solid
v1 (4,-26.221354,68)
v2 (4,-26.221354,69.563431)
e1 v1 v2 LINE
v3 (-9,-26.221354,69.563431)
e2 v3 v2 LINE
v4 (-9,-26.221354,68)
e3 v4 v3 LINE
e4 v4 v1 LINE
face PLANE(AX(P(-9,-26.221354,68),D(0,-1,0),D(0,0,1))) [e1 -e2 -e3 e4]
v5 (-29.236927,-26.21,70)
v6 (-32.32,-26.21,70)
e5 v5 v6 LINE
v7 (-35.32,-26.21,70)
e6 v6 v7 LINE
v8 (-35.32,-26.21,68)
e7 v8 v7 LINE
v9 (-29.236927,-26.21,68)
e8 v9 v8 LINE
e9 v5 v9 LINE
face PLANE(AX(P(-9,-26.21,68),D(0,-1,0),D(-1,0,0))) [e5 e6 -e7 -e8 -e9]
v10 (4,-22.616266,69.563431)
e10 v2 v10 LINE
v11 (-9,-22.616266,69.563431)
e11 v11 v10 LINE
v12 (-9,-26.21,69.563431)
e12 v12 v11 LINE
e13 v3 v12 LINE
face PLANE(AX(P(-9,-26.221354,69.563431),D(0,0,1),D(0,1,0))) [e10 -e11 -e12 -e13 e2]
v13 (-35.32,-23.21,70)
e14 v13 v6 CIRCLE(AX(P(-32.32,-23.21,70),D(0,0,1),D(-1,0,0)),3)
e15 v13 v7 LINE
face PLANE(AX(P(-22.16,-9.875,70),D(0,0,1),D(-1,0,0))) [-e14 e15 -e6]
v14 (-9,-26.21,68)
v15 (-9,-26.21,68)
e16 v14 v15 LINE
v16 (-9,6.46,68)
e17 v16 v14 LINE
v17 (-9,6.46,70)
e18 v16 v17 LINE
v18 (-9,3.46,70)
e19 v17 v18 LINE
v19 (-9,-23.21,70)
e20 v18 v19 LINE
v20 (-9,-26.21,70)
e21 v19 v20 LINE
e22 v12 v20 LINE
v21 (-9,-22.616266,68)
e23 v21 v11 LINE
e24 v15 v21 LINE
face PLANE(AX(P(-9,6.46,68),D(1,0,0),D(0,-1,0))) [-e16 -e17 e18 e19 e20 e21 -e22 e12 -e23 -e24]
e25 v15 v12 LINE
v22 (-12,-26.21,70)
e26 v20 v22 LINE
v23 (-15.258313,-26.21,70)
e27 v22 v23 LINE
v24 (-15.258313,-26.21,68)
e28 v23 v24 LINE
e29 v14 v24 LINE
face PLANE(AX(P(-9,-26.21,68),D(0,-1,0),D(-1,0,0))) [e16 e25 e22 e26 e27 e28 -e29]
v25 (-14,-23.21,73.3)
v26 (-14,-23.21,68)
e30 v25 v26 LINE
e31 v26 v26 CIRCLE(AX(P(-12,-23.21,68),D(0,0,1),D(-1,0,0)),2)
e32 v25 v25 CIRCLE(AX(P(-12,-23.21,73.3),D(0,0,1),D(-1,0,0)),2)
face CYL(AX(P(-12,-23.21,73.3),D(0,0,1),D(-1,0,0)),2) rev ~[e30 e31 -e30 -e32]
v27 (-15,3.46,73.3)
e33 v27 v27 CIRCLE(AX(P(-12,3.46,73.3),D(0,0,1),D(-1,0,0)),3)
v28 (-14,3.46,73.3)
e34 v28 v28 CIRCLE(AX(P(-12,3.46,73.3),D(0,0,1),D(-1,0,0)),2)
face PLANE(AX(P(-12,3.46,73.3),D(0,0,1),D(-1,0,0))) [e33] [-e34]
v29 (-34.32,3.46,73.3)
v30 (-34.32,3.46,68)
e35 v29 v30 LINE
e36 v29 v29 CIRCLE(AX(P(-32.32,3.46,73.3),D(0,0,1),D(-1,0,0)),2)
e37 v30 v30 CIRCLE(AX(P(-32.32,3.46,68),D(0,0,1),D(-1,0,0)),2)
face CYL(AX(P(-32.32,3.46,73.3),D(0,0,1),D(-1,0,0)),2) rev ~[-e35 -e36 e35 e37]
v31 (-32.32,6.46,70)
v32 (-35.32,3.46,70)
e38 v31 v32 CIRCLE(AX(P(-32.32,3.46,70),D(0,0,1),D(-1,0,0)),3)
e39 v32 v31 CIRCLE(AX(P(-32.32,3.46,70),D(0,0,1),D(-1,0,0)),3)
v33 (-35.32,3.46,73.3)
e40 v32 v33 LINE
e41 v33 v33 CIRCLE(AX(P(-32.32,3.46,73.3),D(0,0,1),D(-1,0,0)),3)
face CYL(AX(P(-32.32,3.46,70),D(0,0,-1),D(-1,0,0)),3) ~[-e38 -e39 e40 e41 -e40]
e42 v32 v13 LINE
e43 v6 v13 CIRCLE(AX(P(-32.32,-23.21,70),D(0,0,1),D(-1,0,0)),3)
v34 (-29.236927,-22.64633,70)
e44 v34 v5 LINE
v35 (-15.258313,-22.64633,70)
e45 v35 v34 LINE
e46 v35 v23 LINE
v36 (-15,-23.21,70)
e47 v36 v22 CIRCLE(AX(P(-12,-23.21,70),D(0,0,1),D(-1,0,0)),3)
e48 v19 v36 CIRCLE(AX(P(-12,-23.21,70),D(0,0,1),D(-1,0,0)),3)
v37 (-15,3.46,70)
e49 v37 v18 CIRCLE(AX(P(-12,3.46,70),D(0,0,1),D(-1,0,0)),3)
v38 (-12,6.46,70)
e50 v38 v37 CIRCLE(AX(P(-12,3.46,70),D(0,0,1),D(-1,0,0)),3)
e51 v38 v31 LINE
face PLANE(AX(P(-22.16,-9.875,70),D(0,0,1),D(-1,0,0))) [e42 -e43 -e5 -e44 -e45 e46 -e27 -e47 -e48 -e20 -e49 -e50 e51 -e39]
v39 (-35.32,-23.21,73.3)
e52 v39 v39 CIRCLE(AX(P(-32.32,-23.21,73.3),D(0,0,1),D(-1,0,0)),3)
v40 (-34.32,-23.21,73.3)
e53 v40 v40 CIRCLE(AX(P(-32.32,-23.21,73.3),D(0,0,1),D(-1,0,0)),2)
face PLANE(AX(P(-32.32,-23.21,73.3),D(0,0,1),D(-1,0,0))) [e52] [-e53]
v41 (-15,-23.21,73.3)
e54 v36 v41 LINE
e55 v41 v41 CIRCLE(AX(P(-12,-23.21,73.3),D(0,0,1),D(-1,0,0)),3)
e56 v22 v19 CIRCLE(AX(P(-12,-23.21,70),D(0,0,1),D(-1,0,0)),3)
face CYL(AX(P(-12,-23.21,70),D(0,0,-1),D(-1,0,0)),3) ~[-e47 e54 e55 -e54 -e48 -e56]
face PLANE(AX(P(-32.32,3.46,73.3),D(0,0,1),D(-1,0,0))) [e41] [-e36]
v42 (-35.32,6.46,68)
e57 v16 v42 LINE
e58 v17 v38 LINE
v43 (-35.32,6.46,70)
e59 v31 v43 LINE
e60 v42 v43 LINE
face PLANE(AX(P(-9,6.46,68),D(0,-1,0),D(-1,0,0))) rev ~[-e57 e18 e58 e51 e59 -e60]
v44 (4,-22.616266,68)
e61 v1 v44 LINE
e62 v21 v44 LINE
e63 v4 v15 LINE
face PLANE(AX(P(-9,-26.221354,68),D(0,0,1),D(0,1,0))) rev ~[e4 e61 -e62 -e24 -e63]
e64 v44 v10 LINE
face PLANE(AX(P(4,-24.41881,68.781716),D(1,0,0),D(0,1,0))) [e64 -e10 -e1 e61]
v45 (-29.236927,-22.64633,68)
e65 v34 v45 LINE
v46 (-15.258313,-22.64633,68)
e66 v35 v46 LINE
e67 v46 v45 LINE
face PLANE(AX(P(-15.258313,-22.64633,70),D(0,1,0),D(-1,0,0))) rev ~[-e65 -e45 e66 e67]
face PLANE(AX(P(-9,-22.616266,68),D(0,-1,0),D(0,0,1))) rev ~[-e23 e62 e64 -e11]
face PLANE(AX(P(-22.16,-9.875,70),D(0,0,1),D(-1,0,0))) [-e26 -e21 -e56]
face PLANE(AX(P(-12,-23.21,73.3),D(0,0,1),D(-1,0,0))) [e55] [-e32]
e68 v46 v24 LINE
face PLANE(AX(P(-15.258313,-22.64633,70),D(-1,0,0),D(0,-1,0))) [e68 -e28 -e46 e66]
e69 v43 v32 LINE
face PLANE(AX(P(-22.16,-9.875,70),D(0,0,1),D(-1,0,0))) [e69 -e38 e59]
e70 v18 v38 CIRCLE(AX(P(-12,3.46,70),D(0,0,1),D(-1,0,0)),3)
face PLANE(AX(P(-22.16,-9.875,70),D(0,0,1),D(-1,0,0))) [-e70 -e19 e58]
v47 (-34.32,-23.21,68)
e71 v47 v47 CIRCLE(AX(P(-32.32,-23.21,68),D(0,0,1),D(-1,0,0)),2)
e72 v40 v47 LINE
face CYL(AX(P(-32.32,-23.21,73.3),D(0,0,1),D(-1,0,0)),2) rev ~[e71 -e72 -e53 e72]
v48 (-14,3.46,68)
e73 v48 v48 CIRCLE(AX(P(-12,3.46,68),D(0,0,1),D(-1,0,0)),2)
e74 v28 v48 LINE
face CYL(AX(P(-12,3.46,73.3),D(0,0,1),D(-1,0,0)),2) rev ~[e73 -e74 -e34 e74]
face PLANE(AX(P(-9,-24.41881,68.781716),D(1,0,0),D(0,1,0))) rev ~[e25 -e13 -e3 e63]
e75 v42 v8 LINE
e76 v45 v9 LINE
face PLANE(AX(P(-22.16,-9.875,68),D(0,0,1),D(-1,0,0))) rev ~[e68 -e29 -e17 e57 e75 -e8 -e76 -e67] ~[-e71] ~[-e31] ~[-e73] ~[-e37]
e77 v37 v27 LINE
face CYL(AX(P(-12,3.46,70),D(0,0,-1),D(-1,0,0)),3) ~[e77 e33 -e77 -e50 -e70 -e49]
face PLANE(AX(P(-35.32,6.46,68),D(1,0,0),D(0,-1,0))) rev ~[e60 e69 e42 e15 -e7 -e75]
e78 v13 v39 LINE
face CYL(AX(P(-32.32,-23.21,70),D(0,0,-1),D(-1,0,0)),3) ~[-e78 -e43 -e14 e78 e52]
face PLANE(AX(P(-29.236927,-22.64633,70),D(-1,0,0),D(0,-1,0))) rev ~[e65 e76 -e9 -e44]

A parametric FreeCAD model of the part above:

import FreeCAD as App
import Part
import Sketcher

V = App.Vector

doc = App.newDocument("Part")
body = doc.addObject("PartDesign::Body", "Body")

sketch1 = body.newObject("Sketcher::SketchObject", "Sketch")
sketch1.AttachmentSupport = (doc.getObject("XY_Plane"), [""])
sketch1.MapMode = "FlatFace"
sketch1.addGeometry([
    Part.LineSegment(V(-0.46, 32.21, 0), V(-0.46, -0.46, 0)),
    Part.LineSegment(V(-0.46, -0.46, 0), V(25.86, -0.46, 0)),
    Part.LineSegment(V(25.86, -0.46, 0), V(25.86, 32.21, 0)),
    Part.LineSegment(V(25.86, 32.21, 0), V(-0.46, 32.21, 0)),
], False)
sketch1.addConstraint([
    Sketcher.Constraint("Coincident", 0, 2, 1, 1),
    Sketcher.Constraint("Coincident", 1, 2, 2, 1),
    Sketcher.Constraint("Coincident", 2, 2, 3, 1),
    Sketcher.Constraint("Coincident", 3, 2, 0, 1),
    Sketcher.Constraint("Vertical", 0),
    Sketcher.Constraint("Horizontal", 1),
    Sketcher.Constraint("Vertical", 2),
    Sketcher.Constraint("Horizontal", 3),
    Sketcher.Constraint("DistanceX", 1, 1, 1, 2, 26.32),
    Sketcher.Constraint("DistanceY", 0, 2, 0, 1, 32.67),
    Sketcher.Constraint("DistanceX", 0, 2, -1, 1, 0.46),
    Sketcher.Constraint("DistanceY", 0, 2, -1, 1, 0.46),
])
pad1 = body.newObject("PartDesign::Pad", "Pad")
pad1.Profile = sketch1
pad1.Length = 2

sketch2 = body.newObject("Sketcher::SketchObject", "Sketch001")
sketch2.AttachmentSupport = (doc.getObject("XY_Plane"), [""])
sketch2.MapMode = "FlatFace"
sketch2.AttachmentOffset = App.Placement(V(0, 0, 2), App.Rotation())
sketch2.addGeometry([
    Part.Circle(V(2.54, 29.21, 0), V(0, 0, 1), 3),
    Part.Circle(V(2.54, 29.21, 0), V(0, 0, 1), 2),
    Part.Circle(V(22.86, 29.21, 0), V(0, 0, 1), 3),
    Part.Circle(V(22.86, 29.21, 0), V(0, 0, 1), 2),
    Part.Circle(V(22.86, 2.54, 0), V(0, 0, 1), 3),
    Part.Circle(V(22.86, 2.54, 0), V(0, 0, 1), 2),
    Part.Circle(V(2.54, 2.54, 0), V(0, 0, 1), 3),
    Part.Circle(V(2.54, 2.54, 0), V(0, 0, 1), 2),
], False)
sketch2.addConstraint([
    Sketcher.Constraint("Coincident", 1, 3, 0, 3),
    Sketcher.Constraint("Coincident", 3, 3, 2, 3),
    Sketcher.Constraint("Coincident", 5, 3, 4, 3),
    Sketcher.Constraint("Coincident", 7, 3, 6, 3),
    Sketcher.Constraint("Equal", 0, 2),
    Sketcher.Constraint("Equal", 1, 3),
    Sketcher.Constraint("Equal", 2, 4),
    Sketcher.Constraint("Equal", 3, 5),
    Sketcher.Constraint("Equal", 4, 6),
    Sketcher.Constraint("Equal", 5, 7),
    Sketcher.Constraint("Horizontal", 1, 3, 2, 3),
    Sketcher.Constraint("Horizontal", 5, 3, 6, 3),
    Sketcher.Constraint("Vertical", 3, 3, 4, 3),
    Sketcher.Constraint("Vertical", 1, 3, 6, 3),
    Sketcher.Constraint("Diameter", 0, 6.0),
    Sketcher.Constraint("Diameter", 1, 4.0),
    Sketcher.Constraint("DistanceX", -1, 1, 0, 3, 2.54),
    Sketcher.Constraint("DistanceY", -1, 1, 0, 3, 29.21),
    Sketcher.Constraint("DistanceX", -1, 1, 2, 3, 22.86),
    Sketcher.Constraint("DistanceY", -1, 1, 4, 3, 2.54),
])
pad2 = body.newObject("PartDesign::Pad", "Pad001")
pad2.Profile = sketch2
pad2.Length = 3.3

sketch3 = body.newObject("Sketcher::SketchObject", "Sketch002")
sketch3.AttachmentSupport = (doc.getObject("YZ_Plane"), [""])
sketch3.MapMode = "FlatFace"
sketch3.AttachmentOffset = App.Placement(V(0, 0, -0.46), App.Rotation())
sketch3.addGeometry([
    Part.LineSegment(V(32.221354, 1.563432, 0), V(32.221354, 0, 0)),
    Part.LineSegment(V(32.221354, 0, 0), V(28.616266, 0, 0)),
    Part.LineSegment(V(28.616266, 0, 0), V(28.616266, 1.563432, 0)),
    Part.LineSegment(V(28.616266, 1.563432, 0), V(32.221354, 1.563432, 0)),
], False)
sketch3.addConstraint([
    Sketcher.Constraint("Coincident", 0, 2, 1, 1),
    Sketcher.Constraint("Coincident", 1, 2, 2, 1),
    Sketcher.Constraint("Coincident", 2, 2, 3, 1),
    Sketcher.Constraint("Coincident", 3, 2, 0, 1),
    Sketcher.Constraint("Vertical", 0),
    Sketcher.Constraint("Horizontal", 1),
    Sketcher.Constraint("Vertical", 2),
    Sketcher.Constraint("Horizontal", 3),
    Sketcher.Constraint("PointOnObject", 0, 2, -1),
    Sketcher.Constraint("DistanceY", 0, 2, 0, 1, 1.563431),
    Sketcher.Constraint("DistanceX", 1, 2, 1, 1, 3.605088),
    Sketcher.Constraint("DistanceX", -1, 1, 0, 2, 32.221354),
])
pad3 = body.newObject("PartDesign::Pad", "Pad002")
pad3.Profile = sketch3
pad3.Length = 13
pad3.Reversed = True

sketch4 = body.newObject("Sketcher::SketchObject", "Sketch003")
sketch4.AttachmentSupport = (doc.getObject("XY_Plane"), [""])
sketch4.MapMode = "FlatFace"
sketch4.AttachmentOffset = App.Placement(V(0, 0, 5.3), App.Rotation())
sketch4.addGeometry([
    Part.Circle(V(2.54, 29.21, 0), V(0, 0, 1), 2),
    Part.Circle(V(22.86, 29.21, 0), V(0, 0, 1), 2),
    Part.Circle(V(22.86, 2.54, 0), V(0, 0, 1), 2),
    Part.Circle(V(2.54, 2.54, 0), V(0, 0, 1), 2),
], False)
sketch4.addConstraint([
    Sketcher.Constraint("Equal", 0, 1),
    Sketcher.Constraint("Equal", 1, 2),
    Sketcher.Constraint("Equal", 2, 3),
    Sketcher.Constraint("Horizontal", 0, 3, 1, 3),
    Sketcher.Constraint("Horizontal", 2, 3, 3, 3),
    Sketcher.Constraint("Vertical", 1, 3, 2, 3),
    Sketcher.Constraint("Vertical", 0, 3, 3, 3),
    Sketcher.Constraint("Diameter", 0, 4.0),
    Sketcher.Constraint("DistanceX", -1, 1, 0, 3, 2.54),
    Sketcher.Constraint("DistanceY", -1, 1, 0, 3, 29.21),
    Sketcher.Constraint("DistanceX", -1, 1, 1, 3, 22.86),
    Sketcher.Constraint("DistanceY", -1, 1, 2, 3, 2.54),
])
pocket1 = body.newObject("PartDesign::Pocket", "Pocket")
pocket1.Profile = sketch4
pocket1.Type = "ThroughAll"

sketch5 = body.newObject("Sketcher::SketchObject", "Sketch004")
sketch5.AttachmentSupport = (doc.getObject("XY_Plane"), [""])
sketch5.MapMode = "FlatFace"
sketch5.AttachmentOffset = App.Placement(V(0, 0, 2), App.Rotation())
sketch5.addGeometry([
    Part.LineSegment(V(5.798313, 32.21, 0), V(5.798313, 28.64633, 0)),
    Part.LineSegment(V(5.798313, 28.64633, 0), V(19.776927, 28.64633, 0)),
    Part.LineSegment(V(19.776927, 28.64633, 0), V(19.776927, 32.21, 0)),
    Part.LineSegment(V(19.776927, 32.21, 0), V(5.798313, 32.21, 0)),
], False)
sketch5.addConstraint([
    Sketcher.Constraint("Coincident", 0, 2, 1, 1),
    Sketcher.Constraint("Coincident", 1, 2, 2, 1),
    Sketcher.Constraint("Coincident", 2, 2, 3, 1),
    Sketcher.Constraint("Coincident", 3, 2, 0, 1),
    Sketcher.Constraint("Vertical", 0),
    Sketcher.Constraint("Horizontal", 1),
    Sketcher.Constraint("Vertical", 2),
    Sketcher.Constraint("Horizontal", 3),
    Sketcher.Constraint("DistanceY", -1, 1, 2, 2, 32.21),
    Sketcher.Constraint("DistanceY", 0, 2, 0, 1, 3.56367),
    Sketcher.Constraint("DistanceX", 1, 1, 1, 2, 13.978614),
    Sketcher.Constraint("DistanceX", -1, 1, 0, 2, 5.798313),
])
pocket2 = body.newObject("PartDesign::Pocket", "Pocket001")
pocket2.Profile = sketch5
pocket2.Type = "ThroughAll"
body2 = doc.addObject("PartDesign::Body", "Body001")
doc.recompute()

body.Placement = App.Placement(V(-9.46, 6, 68), App.Rotation(V(0, 0, 1), 180))
boolean = body2.newObject("PartDesign::Boolean", "Boolean")
boolean.Type = "Fuse"
boolean.addObjects([body])

doc.recompute()
